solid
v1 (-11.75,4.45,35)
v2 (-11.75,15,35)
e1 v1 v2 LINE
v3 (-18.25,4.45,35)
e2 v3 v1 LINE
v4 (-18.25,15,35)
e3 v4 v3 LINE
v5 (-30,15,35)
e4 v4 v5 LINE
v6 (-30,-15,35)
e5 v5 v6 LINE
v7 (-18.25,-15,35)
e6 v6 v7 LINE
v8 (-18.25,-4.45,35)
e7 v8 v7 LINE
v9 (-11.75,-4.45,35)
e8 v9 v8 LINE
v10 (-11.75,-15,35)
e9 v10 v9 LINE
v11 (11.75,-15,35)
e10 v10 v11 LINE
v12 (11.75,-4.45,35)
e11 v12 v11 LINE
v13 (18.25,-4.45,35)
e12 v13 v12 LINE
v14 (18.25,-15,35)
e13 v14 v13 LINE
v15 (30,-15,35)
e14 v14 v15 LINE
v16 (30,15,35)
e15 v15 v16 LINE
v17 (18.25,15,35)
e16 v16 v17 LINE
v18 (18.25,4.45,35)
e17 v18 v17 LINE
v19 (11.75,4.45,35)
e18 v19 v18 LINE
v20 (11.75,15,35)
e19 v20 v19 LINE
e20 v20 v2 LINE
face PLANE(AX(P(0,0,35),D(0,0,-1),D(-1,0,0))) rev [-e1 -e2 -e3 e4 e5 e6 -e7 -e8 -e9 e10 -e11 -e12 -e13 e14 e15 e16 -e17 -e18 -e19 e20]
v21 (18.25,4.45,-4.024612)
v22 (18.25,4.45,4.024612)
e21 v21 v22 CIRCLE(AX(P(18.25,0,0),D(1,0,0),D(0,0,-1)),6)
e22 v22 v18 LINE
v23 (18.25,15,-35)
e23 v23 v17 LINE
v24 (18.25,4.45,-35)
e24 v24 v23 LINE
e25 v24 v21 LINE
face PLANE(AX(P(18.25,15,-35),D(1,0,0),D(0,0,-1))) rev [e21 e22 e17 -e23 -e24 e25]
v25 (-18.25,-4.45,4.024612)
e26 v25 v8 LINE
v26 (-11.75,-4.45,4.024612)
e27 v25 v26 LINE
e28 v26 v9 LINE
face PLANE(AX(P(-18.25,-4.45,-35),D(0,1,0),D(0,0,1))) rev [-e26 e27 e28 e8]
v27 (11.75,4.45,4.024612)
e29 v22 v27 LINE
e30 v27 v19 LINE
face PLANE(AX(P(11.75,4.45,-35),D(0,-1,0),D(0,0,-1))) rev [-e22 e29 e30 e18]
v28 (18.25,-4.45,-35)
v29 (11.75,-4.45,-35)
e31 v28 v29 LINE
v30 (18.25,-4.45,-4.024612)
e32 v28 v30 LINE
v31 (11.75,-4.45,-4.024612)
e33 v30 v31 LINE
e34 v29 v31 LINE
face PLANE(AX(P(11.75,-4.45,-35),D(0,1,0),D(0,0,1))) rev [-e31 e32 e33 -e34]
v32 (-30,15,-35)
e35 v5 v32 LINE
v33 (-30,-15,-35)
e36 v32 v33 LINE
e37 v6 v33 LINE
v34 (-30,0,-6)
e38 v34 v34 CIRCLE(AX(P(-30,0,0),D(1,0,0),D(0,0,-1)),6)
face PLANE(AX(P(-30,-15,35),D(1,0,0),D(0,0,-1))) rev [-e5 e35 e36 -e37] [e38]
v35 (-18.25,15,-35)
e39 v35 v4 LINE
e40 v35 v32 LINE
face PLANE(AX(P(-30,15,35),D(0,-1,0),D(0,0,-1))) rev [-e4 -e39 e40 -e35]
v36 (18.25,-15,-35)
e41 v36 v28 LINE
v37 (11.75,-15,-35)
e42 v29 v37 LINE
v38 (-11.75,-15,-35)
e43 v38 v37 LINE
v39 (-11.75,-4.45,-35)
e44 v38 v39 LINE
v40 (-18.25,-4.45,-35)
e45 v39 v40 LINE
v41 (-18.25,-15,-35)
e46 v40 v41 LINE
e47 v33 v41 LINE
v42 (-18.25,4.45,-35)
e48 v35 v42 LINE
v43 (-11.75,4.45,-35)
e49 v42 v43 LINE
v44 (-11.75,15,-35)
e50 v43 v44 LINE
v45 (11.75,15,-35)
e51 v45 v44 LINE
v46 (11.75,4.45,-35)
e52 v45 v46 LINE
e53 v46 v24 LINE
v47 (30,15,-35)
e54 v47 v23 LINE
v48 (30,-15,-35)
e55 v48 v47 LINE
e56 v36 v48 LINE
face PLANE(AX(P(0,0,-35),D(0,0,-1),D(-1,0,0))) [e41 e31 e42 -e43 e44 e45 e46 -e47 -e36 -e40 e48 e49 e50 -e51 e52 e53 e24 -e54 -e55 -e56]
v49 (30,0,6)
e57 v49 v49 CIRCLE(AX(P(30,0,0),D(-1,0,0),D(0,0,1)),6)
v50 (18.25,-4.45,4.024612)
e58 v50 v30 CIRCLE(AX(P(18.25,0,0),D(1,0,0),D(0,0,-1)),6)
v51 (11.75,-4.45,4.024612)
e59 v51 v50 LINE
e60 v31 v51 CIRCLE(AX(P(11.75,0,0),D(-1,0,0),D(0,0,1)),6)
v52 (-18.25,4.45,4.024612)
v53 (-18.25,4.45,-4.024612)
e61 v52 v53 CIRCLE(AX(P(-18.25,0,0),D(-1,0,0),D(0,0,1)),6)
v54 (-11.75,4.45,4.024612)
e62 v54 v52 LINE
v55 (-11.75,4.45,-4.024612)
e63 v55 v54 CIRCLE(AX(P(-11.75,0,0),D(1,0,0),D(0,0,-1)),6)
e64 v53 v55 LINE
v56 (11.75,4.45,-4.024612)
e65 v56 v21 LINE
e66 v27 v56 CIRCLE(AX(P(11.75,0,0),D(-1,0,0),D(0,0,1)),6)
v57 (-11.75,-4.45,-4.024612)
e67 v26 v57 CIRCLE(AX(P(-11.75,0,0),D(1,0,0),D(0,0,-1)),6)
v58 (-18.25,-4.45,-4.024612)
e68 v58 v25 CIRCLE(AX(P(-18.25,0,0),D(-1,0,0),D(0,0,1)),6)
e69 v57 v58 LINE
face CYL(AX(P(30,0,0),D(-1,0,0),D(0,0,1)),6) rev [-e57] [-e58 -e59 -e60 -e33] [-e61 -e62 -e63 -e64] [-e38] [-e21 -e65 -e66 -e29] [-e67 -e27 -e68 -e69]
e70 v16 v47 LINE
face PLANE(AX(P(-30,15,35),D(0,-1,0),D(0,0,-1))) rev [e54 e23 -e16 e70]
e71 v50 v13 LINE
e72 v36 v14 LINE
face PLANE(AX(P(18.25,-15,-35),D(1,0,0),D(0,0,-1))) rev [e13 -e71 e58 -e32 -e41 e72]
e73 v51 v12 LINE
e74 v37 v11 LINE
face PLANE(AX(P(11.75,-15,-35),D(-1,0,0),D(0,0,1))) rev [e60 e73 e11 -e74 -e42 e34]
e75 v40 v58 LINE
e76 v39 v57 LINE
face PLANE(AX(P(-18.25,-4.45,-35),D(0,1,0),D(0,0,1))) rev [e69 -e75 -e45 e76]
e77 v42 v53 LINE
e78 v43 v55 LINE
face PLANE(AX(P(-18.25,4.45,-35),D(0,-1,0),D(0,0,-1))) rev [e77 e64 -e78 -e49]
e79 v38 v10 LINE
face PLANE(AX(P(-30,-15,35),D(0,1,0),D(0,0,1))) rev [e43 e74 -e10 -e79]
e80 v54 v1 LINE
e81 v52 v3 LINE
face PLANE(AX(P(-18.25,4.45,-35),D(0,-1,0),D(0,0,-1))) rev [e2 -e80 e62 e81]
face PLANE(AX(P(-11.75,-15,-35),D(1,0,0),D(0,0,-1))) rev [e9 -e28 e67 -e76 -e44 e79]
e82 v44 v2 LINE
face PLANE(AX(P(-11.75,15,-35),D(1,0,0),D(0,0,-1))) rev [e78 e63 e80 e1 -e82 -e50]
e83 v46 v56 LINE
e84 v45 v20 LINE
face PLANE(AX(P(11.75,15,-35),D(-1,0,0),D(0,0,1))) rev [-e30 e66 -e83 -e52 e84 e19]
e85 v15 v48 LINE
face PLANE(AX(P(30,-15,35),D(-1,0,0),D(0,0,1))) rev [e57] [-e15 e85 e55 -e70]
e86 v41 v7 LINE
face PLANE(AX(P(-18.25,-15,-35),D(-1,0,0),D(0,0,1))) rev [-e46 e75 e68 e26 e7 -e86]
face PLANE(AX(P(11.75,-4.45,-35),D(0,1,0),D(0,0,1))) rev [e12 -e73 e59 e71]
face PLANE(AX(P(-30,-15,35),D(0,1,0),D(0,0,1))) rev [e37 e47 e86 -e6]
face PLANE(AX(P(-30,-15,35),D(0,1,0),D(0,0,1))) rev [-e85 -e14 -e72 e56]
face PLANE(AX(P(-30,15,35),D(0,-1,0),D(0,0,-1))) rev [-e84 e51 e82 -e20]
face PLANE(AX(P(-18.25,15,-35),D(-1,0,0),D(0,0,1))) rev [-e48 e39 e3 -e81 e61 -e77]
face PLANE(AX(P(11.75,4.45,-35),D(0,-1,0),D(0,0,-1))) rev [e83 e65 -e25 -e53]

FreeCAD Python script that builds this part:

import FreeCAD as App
import Part
import Sketcher

V = App.Vector
Q = App.Units.Quantity

doc = App.newDocument("Part")
body = doc.addObject("PartDesign::Body", "Body")

sketch1 = body.newObject("Sketcher::SketchObject", "Sketch")
sketch1.AttachmentSupport = (doc.getObject("XY_Plane"), [""])
sketch1.MapMode = "FlatFace"
sketch1.addGeometry([
    Part.LineSegment(V(-30, 15, 0), V(-30, -15, 0)),
    Part.LineSegment(V(-30, -15, 0), V(30, -15, 0)),
    Part.LineSegment(V(30, -15, 0), V(30, 15, 0)),
    Part.LineSegment(V(30, 15, 0), V(-30, 15, 0)),
], False)
sketch1.addConstraint([
    Sketcher.Constraint("Coincident", 0, 2, 1, 1),
    Sketcher.Constraint("Coincident", 1, 2, 2, 1),
    Sketcher.Constraint("Coincident", 2, 2, 3, 1),
    Sketcher.Constraint("Coincident", 3, 2, 0, 1),
    Sketcher.Constraint("Vertical", 0),
    Sketcher.Constraint("Horizontal", 1),
    Sketcher.Constraint("Vertical", 2),
    Sketcher.Constraint("Horizontal", 3),
    Sketcher.Constraint("Symmetric", 0, 2, 2, 2, -1, 1),
    Sketcher.Constraint("DistanceX", 1, 1, 1, 2, Q("60 mm")),
    Sketcher.Constraint("DistanceY", 0, 2, 0, 1, Q("30 mm")),
])
pad1 = body.newObject("PartDesign::Pad", "Pad")
pad1.Profile = sketch1
pad1.Length = 70
pad1.Midplane = True

sketch2 = body.newObject("Sketcher::SketchObject", "Sketch001")
sketch2.AttachmentSupport = (doc.getObject("XY_Plane"), [""])
sketch2.MapMode = "FlatFace"
sketch2.addGeometry([
    Part.LineSegment(V(11.75, 15, 0), V(11.75, 4.45, 0)),
    Part.LineSegment(V(11.75, 4.45, 0), V(18.25, 4.45, 0)),
    Part.LineSegment(V(18.25, 4.45, 0), V(18.25, 15, 0)),
    Part.LineSegment(V(18.25, 15, 0), V(11.75, 15, 0)),
    Part.LineSegment(V(-18.25, 15, 0), V(-18.25, 4.45, 0)),
    Part.LineSegment(V(-18.25, 4.45, 0), V(-11.75, 4.45, 0)),
    Part.LineSegment(V(-11.75, 4.45, 0), V(-11.75, 15, 0)),
    Part.LineSegment(V(-11.75, 15, 0), V(-18.25, 15, 0)),
    Part.LineSegment(V(-18.25, -4.45, 0), V(-18.25, -15, 0)),
    Part.LineSegment(V(-18.25, -15, 0), V(-11.75, -15, 0)),
    Part.LineSegment(V(-11.75, -15, 0), V(-11.75, -4.45, 0)),
    Part.LineSegment(V(-11.75, -4.45, 0), V(-18.25, -4.45, 0)),
    Part.LineSegment(V(11.75, -4.45, 0), V(11.75, -15, 0)),
    Part.LineSegment(V(11.75, -15, 0), V(18.25, -15, 0)),
    Part.LineSegment(V(18.25, -15, 0), V(18.25, -4.45, 0)),
    Part.LineSegment(V(18.25, -4.45, 0), V(11.75, -4.45, 0)),
], False)
sketch2.addConstraint([
    Sketcher.Constraint("Coincident", 0, 2, 1, 1),
    Sketcher.Constraint("Coincident", 1, 2, 2, 1),
    Sketcher.Constraint("Coincident", 2, 2, 3, 1),
    Sketcher.Constraint("Coincident", 3, 2, 0, 1),
    Sketcher.Constraint("Coincident", 4, 2, 5, 1),
    Sketcher.Constraint("Coincident", 5, 2, 6, 1),
    Sketcher.Constraint("Coincident", 6, 2, 7, 1),
    Sketcher.Constraint("Coincident", 7, 2, 4, 1),
    Sketcher.Constraint("Coincident", 8, 2, 9, 1),
    Sketcher.Constraint("Coincident", 9, 2, 10, 1),
    Sketcher.Constraint("Coincident", 10, 2, 11, 1),
    Sketcher.Constraint("Coincident", 11, 2, 8, 1),
    Sketcher.Constraint("Coincident", 12, 2, 13, 1),
    Sketcher.Constraint("Coincident", 13, 2, 14, 1),
    Sketcher.Constraint("Coincident", 14, 2, 15, 1),
    Sketcher.Constraint("Coincident", 15, 2, 12, 1),
    Sketcher.Constraint("Vertical", 0),
    Sketcher.Constraint("Horizontal", 1),
    Sketcher.Constraint("Vertical", 2),
    Sketcher.Constraint("Horizontal", 3),
    Sketcher.Constraint("Vertical", 4),
    Sketcher.Constraint("Horizontal", 5),
    Sketcher.Constraint("Vertical", 6),
    Sketcher.Constraint("Horizontal", 7),
    Sketcher.Constraint("Vertical", 8),
    Sketcher.Constraint("Horizontal", 9),
    Sketcher.Constraint("Vertical", 10),
    Sketcher.Constraint("Horizontal", 11),
    Sketcher.Constraint("Vertical", 12),
    Sketcher.Constraint("Horizontal", 13),
    Sketcher.Constraint("Vertical", 14),
    Sketcher.Constraint("Horizontal", 15),
    Sketcher.Constraint("Symmetric", 2, 2, 8, 2, -1, 1),
    Sketcher.Constraint("Symmetric", 0, 2, 10, 2, -1, 1),
    Sketcher.Constraint("Symmetric", 6, 2, 12, 2, -1, 1),
    Sketcher.Constraint("Symmetric", 4, 2, 14, 2, -1, 1),
    Sketcher.Constraint("Symmetric", 1, 2, 4, 2, -2),
    Sketcher.Constraint("Symmetric", 3, 2, 6, 2, -2),
    Sketcher.Constraint("DistanceX", 1, 1, 1, 2, Q("6.5 mm")),
    Sketcher.Constraint("DistanceY", -1, 1, 2, 2, Q("15 mm")),
    Sketcher.Constraint("DistanceX", 4, 2, 0, 2, Q("30 mm")),
    Sketcher.Constraint("DistanceY", 0, 2, 0, 1, Q("10.55 mm")),
])
pocket1 = body.newObject("PartDesign::Pocket", "Pocket")
pocket1.Profile = sketch2
pocket1.Type = "ThroughAll"
pocket1.Midplane = True

sketch3 = body.newObject("Sketcher::SketchObject", "Sketch002")
sketch3.AttachmentSupport = (doc.getObject("YZ_Plane"), [""])
sketch3.MapMode = "FlatFace"
sketch3.AttachmentOffset = App.Placement(V(0, 0, -30), App.Rotation())
sketch3.addGeometry(Part.Circle(V(0, 0, 0), V(0, 0, 1), 6), False)
sketch3.addConstraint([
    Sketcher.Constraint("Coincident", 0, 3, -1, 1),
    Sketcher.Constraint("Diameter", 0, Q("12 mm")),
])
pocket2 = body.newObject("PartDesign::Pocket", "Pocket001")
pocket2.Profile = sketch3
pocket2.Type = "ThroughAll"
pocket2.Midplane = True

doc.recompute()
